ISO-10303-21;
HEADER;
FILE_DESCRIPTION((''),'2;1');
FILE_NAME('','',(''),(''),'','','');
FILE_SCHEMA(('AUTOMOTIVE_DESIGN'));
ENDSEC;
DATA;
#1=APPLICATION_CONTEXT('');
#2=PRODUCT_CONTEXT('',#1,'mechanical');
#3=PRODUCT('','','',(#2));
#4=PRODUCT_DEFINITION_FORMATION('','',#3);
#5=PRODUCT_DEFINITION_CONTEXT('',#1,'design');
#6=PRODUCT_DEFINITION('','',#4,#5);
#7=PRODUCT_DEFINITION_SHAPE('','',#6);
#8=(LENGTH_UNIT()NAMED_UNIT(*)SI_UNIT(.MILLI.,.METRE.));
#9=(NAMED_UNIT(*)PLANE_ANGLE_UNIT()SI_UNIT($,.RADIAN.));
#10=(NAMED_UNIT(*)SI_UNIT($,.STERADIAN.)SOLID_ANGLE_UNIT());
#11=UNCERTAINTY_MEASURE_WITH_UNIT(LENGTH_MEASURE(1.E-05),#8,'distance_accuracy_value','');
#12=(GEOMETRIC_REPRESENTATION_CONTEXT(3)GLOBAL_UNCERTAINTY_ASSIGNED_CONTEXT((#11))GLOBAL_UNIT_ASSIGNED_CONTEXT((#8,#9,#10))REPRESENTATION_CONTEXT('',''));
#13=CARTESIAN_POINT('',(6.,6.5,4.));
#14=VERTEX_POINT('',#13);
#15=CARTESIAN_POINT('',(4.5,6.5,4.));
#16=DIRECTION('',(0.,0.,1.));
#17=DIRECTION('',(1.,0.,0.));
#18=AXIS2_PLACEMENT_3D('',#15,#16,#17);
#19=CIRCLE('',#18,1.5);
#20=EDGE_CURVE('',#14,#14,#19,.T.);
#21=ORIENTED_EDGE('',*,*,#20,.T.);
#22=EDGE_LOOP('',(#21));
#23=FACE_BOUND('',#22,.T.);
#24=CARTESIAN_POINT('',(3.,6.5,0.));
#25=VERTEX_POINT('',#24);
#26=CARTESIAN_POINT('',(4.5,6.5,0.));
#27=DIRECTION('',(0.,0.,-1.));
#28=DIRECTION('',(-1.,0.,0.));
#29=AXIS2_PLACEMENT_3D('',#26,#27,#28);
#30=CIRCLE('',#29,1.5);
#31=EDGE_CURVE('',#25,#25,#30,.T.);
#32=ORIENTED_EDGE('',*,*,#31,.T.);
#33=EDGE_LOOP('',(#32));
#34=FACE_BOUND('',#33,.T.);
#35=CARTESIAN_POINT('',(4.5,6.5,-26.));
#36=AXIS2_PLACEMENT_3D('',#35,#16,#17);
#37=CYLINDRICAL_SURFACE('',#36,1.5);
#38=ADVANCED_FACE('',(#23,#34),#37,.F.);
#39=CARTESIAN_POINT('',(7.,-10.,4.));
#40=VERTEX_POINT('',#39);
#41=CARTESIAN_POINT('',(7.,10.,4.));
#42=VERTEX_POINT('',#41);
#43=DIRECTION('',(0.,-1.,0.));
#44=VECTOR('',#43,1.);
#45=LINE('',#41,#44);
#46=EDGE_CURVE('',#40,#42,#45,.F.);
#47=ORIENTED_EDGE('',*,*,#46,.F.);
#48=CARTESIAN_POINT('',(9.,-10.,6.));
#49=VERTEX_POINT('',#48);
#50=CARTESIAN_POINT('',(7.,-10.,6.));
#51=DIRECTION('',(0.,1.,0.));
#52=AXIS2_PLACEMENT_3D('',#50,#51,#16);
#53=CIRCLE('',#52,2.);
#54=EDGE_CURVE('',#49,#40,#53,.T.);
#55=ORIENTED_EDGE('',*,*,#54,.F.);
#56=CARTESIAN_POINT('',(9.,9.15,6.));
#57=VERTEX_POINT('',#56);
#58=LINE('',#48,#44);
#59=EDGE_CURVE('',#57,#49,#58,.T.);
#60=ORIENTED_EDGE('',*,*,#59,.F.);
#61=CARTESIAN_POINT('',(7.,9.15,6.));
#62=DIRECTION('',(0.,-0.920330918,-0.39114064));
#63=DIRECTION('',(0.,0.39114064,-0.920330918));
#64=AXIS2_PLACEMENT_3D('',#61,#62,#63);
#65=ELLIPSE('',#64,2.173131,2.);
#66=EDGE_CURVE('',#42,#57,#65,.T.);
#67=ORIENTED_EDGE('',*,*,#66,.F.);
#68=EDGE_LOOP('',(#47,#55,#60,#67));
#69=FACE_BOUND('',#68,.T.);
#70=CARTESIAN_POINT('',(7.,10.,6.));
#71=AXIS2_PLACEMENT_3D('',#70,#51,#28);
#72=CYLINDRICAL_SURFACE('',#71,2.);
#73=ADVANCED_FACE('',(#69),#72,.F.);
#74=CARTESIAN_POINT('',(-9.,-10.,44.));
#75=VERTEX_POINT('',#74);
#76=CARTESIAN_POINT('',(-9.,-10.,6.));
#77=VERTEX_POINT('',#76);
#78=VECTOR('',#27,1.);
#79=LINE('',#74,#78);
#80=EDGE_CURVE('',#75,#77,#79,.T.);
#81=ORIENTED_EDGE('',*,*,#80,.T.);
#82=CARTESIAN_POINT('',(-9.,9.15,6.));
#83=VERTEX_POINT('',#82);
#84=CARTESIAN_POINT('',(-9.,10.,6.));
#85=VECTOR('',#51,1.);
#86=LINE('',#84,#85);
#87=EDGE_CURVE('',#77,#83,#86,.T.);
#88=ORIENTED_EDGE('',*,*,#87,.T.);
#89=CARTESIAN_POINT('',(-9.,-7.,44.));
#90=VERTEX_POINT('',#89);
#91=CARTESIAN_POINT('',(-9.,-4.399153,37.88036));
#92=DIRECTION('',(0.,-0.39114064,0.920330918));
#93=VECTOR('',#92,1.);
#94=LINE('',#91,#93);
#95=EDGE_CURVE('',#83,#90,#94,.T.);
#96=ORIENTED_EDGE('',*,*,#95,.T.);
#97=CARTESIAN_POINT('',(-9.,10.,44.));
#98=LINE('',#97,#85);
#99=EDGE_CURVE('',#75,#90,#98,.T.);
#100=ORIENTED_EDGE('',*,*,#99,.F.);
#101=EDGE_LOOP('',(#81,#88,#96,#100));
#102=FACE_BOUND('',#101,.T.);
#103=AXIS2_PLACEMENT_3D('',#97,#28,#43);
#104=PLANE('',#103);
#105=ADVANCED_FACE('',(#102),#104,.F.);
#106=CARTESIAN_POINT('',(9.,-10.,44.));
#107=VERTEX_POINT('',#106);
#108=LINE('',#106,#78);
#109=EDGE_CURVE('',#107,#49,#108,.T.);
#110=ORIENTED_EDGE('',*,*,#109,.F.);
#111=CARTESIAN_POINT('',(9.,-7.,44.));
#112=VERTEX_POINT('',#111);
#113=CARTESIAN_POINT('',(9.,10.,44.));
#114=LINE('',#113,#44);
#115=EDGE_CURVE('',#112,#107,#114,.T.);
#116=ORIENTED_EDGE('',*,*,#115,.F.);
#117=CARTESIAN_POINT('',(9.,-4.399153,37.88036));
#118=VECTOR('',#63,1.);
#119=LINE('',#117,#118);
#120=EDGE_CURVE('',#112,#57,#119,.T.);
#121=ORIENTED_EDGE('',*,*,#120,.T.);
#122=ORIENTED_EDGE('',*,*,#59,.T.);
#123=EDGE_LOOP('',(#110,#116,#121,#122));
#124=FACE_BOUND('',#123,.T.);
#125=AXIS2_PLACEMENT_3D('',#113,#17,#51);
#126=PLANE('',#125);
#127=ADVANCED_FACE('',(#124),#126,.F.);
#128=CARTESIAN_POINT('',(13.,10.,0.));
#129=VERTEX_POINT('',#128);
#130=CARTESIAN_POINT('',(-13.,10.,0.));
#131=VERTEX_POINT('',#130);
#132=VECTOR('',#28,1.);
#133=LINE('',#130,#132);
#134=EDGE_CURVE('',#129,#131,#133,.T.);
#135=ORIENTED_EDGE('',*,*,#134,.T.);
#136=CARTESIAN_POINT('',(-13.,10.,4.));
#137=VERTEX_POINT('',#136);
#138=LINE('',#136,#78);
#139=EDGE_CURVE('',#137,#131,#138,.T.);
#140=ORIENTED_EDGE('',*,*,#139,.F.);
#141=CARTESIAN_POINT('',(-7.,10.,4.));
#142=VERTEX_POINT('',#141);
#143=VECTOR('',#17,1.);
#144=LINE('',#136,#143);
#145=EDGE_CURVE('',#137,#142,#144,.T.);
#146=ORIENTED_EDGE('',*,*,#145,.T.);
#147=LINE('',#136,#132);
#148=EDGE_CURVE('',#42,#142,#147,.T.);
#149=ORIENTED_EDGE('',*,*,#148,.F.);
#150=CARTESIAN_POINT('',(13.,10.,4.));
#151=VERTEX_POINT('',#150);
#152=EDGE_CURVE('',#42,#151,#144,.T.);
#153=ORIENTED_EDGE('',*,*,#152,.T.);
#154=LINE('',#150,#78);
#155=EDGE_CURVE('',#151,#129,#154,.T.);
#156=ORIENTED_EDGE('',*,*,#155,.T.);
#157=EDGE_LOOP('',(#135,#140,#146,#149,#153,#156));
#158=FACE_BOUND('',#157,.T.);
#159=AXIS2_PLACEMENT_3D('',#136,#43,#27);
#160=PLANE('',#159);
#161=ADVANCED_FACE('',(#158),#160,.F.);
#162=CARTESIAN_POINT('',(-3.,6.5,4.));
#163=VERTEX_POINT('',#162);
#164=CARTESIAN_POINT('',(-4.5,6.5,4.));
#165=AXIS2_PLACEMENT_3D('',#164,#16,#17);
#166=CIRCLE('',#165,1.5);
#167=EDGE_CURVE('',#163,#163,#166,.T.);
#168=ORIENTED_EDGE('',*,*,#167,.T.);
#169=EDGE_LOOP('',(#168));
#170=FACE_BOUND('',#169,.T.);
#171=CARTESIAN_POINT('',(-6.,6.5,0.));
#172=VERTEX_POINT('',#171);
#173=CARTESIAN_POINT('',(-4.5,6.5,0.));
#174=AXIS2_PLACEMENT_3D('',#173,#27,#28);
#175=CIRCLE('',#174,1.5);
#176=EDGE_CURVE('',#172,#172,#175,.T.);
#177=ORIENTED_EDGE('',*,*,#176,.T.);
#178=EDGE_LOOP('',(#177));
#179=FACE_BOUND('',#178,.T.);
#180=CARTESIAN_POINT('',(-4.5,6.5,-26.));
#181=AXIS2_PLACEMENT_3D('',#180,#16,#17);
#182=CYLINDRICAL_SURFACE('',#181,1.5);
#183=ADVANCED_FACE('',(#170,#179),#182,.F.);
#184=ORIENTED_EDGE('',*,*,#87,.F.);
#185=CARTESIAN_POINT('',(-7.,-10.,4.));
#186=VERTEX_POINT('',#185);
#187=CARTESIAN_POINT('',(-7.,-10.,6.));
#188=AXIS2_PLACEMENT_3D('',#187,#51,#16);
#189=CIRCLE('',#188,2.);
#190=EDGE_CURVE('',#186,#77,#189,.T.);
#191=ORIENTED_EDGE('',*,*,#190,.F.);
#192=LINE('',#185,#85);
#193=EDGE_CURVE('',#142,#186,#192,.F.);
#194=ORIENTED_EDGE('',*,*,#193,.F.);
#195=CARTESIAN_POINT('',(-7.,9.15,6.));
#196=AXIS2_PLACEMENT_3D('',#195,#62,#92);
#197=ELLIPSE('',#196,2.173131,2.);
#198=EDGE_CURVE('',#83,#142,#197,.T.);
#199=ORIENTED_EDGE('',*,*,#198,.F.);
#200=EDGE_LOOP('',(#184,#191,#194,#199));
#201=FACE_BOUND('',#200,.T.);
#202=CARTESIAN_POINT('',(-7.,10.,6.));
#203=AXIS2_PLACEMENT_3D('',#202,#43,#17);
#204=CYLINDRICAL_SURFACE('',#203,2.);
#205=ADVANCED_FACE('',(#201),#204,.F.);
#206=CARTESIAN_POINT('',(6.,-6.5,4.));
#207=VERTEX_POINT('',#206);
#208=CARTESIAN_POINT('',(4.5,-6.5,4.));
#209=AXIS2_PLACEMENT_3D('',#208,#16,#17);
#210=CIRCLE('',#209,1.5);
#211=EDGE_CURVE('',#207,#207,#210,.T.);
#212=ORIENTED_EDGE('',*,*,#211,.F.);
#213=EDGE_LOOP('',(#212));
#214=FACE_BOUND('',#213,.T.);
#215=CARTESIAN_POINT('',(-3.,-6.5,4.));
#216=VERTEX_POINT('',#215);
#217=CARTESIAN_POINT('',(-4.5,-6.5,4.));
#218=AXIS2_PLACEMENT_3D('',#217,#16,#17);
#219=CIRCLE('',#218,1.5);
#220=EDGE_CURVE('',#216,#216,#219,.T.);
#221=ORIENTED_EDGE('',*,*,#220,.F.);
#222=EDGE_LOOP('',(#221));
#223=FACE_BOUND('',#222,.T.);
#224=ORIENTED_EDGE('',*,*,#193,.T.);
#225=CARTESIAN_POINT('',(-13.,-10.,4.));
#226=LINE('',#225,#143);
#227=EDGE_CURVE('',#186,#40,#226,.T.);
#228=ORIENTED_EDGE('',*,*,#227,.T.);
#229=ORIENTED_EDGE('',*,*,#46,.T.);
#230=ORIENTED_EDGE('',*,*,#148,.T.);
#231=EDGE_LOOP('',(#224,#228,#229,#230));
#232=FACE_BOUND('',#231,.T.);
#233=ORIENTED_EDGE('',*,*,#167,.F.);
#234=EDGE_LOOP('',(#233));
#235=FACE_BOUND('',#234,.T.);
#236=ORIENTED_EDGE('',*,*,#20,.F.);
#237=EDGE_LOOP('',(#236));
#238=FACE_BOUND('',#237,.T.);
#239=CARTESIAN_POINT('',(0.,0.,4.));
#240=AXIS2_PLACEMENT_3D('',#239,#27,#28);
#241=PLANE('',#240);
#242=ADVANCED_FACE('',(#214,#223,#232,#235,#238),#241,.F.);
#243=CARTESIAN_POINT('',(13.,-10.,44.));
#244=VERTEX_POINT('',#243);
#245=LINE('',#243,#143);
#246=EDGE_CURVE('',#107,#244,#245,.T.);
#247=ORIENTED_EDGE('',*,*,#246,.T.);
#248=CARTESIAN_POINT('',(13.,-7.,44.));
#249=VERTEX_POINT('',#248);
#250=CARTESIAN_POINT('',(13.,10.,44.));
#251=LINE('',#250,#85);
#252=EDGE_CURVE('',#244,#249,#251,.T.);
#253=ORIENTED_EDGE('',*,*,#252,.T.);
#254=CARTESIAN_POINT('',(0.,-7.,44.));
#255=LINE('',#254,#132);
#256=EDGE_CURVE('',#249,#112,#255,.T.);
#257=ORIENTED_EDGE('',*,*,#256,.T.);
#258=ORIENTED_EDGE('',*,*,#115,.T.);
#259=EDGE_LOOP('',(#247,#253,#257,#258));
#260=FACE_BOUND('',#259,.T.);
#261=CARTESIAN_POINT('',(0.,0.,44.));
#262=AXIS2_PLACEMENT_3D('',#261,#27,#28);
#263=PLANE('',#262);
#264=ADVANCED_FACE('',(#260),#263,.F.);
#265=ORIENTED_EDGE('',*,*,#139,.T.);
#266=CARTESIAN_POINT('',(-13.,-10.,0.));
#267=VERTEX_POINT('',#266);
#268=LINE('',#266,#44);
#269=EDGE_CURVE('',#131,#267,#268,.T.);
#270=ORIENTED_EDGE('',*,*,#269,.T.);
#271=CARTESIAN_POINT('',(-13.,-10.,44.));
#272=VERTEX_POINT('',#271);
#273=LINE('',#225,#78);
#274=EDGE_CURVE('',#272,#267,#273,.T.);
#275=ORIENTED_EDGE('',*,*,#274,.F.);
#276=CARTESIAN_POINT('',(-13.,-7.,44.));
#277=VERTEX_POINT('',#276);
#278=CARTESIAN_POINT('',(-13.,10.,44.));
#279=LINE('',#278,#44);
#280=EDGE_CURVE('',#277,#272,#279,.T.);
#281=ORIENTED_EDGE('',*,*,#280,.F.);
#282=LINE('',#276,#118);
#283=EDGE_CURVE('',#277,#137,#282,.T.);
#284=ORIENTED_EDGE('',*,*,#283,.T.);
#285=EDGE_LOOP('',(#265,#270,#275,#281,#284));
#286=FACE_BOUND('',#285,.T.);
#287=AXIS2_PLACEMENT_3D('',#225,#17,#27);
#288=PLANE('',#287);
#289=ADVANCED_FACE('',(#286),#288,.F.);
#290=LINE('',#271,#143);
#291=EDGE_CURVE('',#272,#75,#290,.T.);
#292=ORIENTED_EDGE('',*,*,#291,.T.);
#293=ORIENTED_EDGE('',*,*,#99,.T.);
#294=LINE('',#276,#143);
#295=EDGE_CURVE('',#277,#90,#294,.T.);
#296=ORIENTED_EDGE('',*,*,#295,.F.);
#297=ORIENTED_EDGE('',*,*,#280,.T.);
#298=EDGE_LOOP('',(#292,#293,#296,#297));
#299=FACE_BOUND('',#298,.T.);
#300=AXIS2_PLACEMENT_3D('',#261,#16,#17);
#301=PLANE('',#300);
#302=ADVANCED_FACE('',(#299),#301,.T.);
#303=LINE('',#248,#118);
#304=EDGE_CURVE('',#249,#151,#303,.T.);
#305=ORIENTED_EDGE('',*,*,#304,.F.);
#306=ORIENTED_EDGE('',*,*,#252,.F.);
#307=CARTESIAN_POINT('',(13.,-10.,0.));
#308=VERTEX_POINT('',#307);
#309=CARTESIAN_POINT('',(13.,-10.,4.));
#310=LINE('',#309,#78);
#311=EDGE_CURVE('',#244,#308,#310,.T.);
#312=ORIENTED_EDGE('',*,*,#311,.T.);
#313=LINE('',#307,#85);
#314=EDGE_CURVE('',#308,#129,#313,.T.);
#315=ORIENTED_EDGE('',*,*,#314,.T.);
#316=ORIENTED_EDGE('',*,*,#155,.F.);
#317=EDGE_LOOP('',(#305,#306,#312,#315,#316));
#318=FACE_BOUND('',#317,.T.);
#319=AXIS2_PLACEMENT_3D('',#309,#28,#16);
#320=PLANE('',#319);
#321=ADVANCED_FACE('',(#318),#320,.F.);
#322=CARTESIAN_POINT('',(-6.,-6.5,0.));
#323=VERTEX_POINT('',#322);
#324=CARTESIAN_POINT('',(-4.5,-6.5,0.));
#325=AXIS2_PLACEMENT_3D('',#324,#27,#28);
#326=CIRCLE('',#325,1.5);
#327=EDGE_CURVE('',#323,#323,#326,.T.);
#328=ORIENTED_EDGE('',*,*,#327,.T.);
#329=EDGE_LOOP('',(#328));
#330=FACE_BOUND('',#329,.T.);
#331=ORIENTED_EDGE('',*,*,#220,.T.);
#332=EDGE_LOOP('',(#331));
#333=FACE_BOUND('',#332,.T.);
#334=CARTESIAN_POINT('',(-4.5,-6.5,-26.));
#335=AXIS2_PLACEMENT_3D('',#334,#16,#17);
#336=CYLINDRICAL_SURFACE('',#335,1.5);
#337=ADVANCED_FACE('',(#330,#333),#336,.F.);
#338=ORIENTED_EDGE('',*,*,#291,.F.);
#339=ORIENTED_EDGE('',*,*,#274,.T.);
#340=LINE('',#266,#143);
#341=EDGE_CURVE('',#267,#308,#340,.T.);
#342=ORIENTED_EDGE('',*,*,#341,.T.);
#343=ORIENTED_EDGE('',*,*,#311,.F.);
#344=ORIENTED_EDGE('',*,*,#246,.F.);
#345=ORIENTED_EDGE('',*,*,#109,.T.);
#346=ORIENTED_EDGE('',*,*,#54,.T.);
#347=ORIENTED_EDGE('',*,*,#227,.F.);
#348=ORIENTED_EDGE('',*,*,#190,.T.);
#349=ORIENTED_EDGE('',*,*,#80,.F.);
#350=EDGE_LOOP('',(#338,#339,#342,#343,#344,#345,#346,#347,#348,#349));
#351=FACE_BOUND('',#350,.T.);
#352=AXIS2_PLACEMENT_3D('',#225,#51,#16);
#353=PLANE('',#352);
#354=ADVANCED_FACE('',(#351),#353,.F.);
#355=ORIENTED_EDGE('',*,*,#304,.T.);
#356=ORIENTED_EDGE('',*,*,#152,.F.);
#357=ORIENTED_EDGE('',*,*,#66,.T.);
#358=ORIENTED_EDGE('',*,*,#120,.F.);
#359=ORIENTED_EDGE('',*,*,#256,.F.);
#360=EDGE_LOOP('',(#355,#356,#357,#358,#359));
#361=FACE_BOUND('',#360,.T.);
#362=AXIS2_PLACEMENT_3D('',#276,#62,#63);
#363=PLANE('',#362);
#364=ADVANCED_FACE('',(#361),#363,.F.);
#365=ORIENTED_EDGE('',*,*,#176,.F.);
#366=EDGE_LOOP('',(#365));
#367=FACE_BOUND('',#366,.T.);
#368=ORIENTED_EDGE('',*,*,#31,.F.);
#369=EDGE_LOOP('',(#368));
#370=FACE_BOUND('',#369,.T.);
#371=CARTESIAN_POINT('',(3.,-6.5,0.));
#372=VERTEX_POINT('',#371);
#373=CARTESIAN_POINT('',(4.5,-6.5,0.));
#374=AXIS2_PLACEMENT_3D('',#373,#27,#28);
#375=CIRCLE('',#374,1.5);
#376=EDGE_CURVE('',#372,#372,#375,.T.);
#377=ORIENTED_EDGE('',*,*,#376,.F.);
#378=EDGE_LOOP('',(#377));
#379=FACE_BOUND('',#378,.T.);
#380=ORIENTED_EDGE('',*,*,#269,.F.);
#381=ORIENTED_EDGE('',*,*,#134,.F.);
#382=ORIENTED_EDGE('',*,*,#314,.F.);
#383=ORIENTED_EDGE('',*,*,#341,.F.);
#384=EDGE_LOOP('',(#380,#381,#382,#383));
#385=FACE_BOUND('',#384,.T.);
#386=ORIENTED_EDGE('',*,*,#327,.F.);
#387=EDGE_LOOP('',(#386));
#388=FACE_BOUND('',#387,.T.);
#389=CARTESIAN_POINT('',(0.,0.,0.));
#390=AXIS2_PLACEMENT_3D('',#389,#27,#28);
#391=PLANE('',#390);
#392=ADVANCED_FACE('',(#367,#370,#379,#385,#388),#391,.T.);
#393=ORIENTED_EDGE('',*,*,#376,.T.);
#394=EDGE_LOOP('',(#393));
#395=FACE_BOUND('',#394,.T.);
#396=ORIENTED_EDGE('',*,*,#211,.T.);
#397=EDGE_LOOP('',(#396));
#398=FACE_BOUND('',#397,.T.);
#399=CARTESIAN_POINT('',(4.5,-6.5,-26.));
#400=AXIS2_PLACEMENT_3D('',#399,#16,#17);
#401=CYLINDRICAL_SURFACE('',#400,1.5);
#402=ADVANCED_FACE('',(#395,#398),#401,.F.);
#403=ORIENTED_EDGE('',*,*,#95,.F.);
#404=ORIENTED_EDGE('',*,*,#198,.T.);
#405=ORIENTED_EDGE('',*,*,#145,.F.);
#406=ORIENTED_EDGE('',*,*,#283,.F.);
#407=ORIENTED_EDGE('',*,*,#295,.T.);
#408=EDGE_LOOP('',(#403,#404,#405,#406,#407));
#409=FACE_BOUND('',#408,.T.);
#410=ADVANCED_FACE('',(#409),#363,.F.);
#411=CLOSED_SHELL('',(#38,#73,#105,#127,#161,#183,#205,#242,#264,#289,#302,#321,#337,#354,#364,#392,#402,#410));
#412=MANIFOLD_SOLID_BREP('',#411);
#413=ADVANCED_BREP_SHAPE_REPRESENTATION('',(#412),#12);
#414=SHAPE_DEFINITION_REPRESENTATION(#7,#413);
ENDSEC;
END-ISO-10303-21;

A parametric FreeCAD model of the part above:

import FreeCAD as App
import Part
import Sketcher

V = App.Vector


def edges_at(feature, points):
    """Names of the edges that pass closest to the given points."""
    edges = feature.Shape.Edges
    near = lambda p: min(range(len(edges)), key=lambda i: edges[i].distToShape(Part.Vertex(*p))[0])
    return sorted({f"Edge{near(p) + 1}" for p in points})

doc = App.newDocument("Part")
body = doc.addObject("PartDesign::Body", "Body")

# Sketch on XY plane
sketch1 = doc.addObject("Sketcher::SketchObject", "Sketch")
body.addObject(sketch1)
sketch1.AttachmentSupport = (doc.XY_Plane, [""])
sketch1.MapMode = "FlatFace"
sketch1.addGeometry([
    Part.LineSegment(V(-13, 10, 0), V(-13, -10, 0)),
    Part.LineSegment(V(-13, -10, 0), V(13, -10, 0)),
    Part.LineSegment(V(13, -10, 0), V(13, 10, 0)),
    Part.LineSegment(V(13, 10, 0), V(-13, 10, 0)),
], False)
sketch1.addConstraint([
    Sketcher.Constraint("Coincident", 0, 2, 1, 1),
    Sketcher.Constraint("Coincident", 1, 2, 2, 1),
    Sketcher.Constraint("Coincident", 2, 2, 3, 1),
    Sketcher.Constraint("Coincident", 3, 2, 0, 1),
    Sketcher.Constraint("Vertical", 0),
    Sketcher.Constraint("Horizontal", 1),
    Sketcher.Constraint("Vertical", 2),
    Sketcher.Constraint("Horizontal", 3),
    Sketcher.Constraint("Symmetric", 0, 2, 2, 2, -1, 1),
    Sketcher.Constraint("DistanceX", 1, 1, 1, 2, 26.0),
    Sketcher.Constraint("DistanceY", 0, 2, 0, 1, 20.0),
])
pad1 = doc.addObject("PartDesign::Pad", "Pad")
body.addObject(pad1)
pad1.Profile = sketch1
pad1.Length = 4

# Sketch on XY plane
sketch2 = doc.addObject("Sketcher::SketchObject", "Sketch001")
body.addObject(sketch2)
sketch2.AttachmentSupport = (doc.XY_Plane, [""])
sketch2.MapMode = "FlatFace"
sketch2.AttachmentOffset = App.Placement(V(0, 0, 4), App.Rotation())
sketch2.addGeometry([
    Part.LineSegment(V(-13, 10, 0), V(-13, -10, 0)),  # 0
    Part.LineSegment(V(-13, -10, 0), V(-9, -10, 0)),  # 1
    Part.LineSegment(V(-9, -10, 0), V(-9, 10, 0)),  # 2
    Part.LineSegment(V(-9, 10, 0), V(-13, 10, 0)),  # 3
    Part.LineSegment(V(9, 10, 0), V(9, -10, 0)),  # 4
    Part.LineSegment(V(9, -10, 0), V(13, -10, 0)),  # 5
    Part.LineSegment(V(13, -10, 0), V(13, 10, 0)),  # 6
    Part.LineSegment(V(13, 10, 0), V(9, 10, 0)),  # 7
], False)
sketch2.addConstraint([
    Sketcher.Constraint("Coincident", 0, 2, 1, 1),
    Sketcher.Constraint("Coincident", 1, 2, 2, 1),
    Sketcher.Constraint("Coincident", 2, 2, 3, 1),
    Sketcher.Constraint("Coincident", 3, 2, 0, 1),
    Sketcher.Constraint("Coincident", 4, 2, 5, 1),
    Sketcher.Constraint("Coincident", 5, 2, 6, 1),
    Sketcher.Constraint("Coincident", 6, 2, 7, 1),
    Sketcher.Constraint("Coincident", 7, 2, 4, 1),
    Sketcher.Constraint("Vertical", 0),
    Sketcher.Constraint("Horizontal", 1),
    Sketcher.Constraint("Vertical", 2),
    Sketcher.Constraint("Horizontal", 3),
    Sketcher.Constraint("Vertical", 4),
    Sketcher.Constraint("Horizontal", 5),
    Sketcher.Constraint("Vertical", 6),
    Sketcher.Constraint("Horizontal", 7),
    Sketcher.Constraint("Symmetric", 2, 2, 4, 2, -1, 1),
    Sketcher.Constraint("Symmetric", 0, 2, 6, 2, -1, 1),
    Sketcher.Constraint("Horizontal", 1, 2, 4, 2),
    Sketcher.Constraint("DistanceX", 1, 1, 1, 2, 4.0),
    Sketcher.Constraint("DistanceY", 0, 2, 0, 1, 20.0),
    Sketcher.Constraint("DistanceX", 0, 2, -1, 1, 13.0),
])
pad2 = doc.addObject("PartDesign::Pad", "Pad001")
body.addObject(pad2)
pad2.Profile = sketch2
pad2.Length = 40

# Sketch on XY plane
sketch3 = doc.addObject("Sketcher::SketchObject", "Sketch002")
body.addObject(sketch3)
sketch3.AttachmentSupport = (doc.XY_Plane, [""])
sketch3.MapMode = "FlatFace"
sketch3.AttachmentOffset = App.Placement(V(0, 0, 4), App.Rotation())
sketch3.addGeometry([
    Part.Circle(V(-4.5, 6.5, 0), V(0, 0, 1), 1.5),
    Part.Circle(V(4.5, 6.5, 0), V(0, 0, 1), 1.5),
    Part.Circle(V(4.5, -6.5, 0), V(0, 0, 1), 1.5),
    Part.Circle(V(-4.5, -6.5, 0), V(0, 0, 1), 1.5),
], False)
sketch3.addConstraint([
    Sketcher.Constraint("Equal", 0, 1),
    Sketcher.Constraint("Equal", 1, 2),
    Sketcher.Constraint("Equal", 2, 3),
    Sketcher.Constraint("Symmetric", 0, 3, 2, 3, -1, 1),
    Sketcher.Constraint("Symmetric", 1, 3, 3, 3, -1, 1),
    Sketcher.Constraint("Symmetric", 0, 3, 1, 3, -2),
    Sketcher.Constraint("Diameter", 0, 3.0),
    Sketcher.Constraint("DistanceX", 0, 3, 1, 3, 9.0),
    Sketcher.Constraint("DistanceY", 2, 3, 1, 3, 13.0),
])
pocket1 = doc.addObject("PartDesign::Pocket", "Pocket")
body.addObject(pocket1)
pocket1.Profile = sketch3
pocket1.Length = 30

# Sketch on YZ plane
sketch4 = doc.addObject("Sketcher::SketchObject", "Sketch003")
body.addObject(sketch4)
sketch4.AttachmentSupport = (doc.YZ_Plane, [""])
sketch4.MapMode = "FlatFace"
sketch4.AttachmentOffset = App.Placement(V(0, 0, 13), App.Rotation())
sketch4.addGeometry([
    Part.LineSegment(V(-7, 44, 0), V(10, 4, 0)),
    Part.LineSegment(V(10, 4, 0), V(10, 44, 0)),
    Part.LineSegment(V(10, 44, 0), V(-7, 44, 0)),
], False)
sketch4.addConstraint([
    Sketcher.Constraint("Coincident", 0, 2, 1, 1),
    Sketcher.Constraint("Coincident", 1, 2, 2, 1),
    Sketcher.Constraint("Coincident", 2, 2, 0, 1),
    Sketcher.Constraint("Vertical", 1),
    Sketcher.Constraint("Horizontal", 2),
    Sketcher.Constraint("DistanceX", 2, 2, 2, 1, 17.0),
    Sketcher.Constraint("DistanceY", 1, 1, 1, 2, 40.0),
    Sketcher.Constraint("DistanceX", -1, 1, 0, 2, 10.0),
    Sketcher.Constraint("DistanceY", -1, 1, 0, 2, 4.0),
])
pocket2 = doc.addObject("PartDesign::Pocket", "Pocket001")
body.addObject(pocket2)
pocket2.Profile = sketch4
pocket2.Type = "ThroughAll"
doc.recompute()

fillet = doc.addObject("PartDesign::Fillet", "Fillet")
body.addObject(fillet)
fillet.Base = (pocket2, edges_at(pocket2, [(-9, 0, 4), (9, 0, 4)]))
fillet.Radius = 2

doc.recompute()
